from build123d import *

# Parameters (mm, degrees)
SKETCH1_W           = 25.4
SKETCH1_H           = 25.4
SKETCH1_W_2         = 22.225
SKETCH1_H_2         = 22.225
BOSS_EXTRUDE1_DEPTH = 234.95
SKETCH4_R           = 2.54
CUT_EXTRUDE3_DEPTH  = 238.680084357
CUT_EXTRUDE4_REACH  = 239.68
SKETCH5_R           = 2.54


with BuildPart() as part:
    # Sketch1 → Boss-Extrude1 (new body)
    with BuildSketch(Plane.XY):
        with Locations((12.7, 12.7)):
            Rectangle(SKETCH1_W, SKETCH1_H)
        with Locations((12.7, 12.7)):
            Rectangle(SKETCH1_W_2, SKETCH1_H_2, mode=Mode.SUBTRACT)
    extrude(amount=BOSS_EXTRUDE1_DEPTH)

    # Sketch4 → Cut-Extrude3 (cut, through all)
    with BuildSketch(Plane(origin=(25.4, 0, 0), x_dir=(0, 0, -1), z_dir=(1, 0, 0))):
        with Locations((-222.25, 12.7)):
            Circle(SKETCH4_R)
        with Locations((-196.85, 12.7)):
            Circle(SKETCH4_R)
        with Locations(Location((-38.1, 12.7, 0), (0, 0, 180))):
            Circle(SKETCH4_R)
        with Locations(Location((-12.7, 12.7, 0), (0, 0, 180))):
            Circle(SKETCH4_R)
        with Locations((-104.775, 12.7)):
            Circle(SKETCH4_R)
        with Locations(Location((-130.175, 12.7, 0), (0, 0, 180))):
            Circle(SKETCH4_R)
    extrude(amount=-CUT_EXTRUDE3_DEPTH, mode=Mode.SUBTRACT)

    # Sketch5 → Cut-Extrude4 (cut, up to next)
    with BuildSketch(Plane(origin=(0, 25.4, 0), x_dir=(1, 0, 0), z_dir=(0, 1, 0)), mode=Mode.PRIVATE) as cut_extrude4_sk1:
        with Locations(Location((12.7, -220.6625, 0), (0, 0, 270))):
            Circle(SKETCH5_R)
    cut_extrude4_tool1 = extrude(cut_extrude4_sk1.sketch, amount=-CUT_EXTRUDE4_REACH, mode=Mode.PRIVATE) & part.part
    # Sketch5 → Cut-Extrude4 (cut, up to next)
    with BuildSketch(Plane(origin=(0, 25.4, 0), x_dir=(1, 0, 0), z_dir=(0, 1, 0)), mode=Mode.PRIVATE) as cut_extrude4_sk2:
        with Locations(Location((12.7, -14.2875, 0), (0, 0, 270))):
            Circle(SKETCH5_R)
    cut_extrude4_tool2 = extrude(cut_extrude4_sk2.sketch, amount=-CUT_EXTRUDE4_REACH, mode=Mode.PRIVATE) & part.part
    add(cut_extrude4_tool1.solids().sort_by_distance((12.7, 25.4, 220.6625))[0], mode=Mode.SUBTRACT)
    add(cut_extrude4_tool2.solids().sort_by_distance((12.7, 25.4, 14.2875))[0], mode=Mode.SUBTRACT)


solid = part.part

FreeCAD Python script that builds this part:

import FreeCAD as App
import Part
import Sketcher
Q = App.Units.Quantity


def add_polygon(sketch, points):
    """Adds a closed chain of lines whose ends are joined by coincident constraints."""
    first, n = sketch.GeometryCount, len(points)
    for a, b in zip(points, points[1:] + points[:1]):
        sketch.addGeometry(Part.LineSegment(App.Vector(*a, 0), App.Vector(*b, 0)), False)
    for i in range(n):
        sketch.addConstraint(Sketcher.Constraint("Coincident", first + i, 2, first + (i + 1) % n, 1))

doc = App.newDocument("Part")
body = doc.addObject("PartDesign::Body", "Body")

# Sketch on XY plane
sketch1 = body.newObject("Sketcher::SketchObject", "Sketch")
sketch1.AttachmentSupport = (doc.getObject("XY_Plane"), [""])
sketch1.MapMode = "FlatFace"
add_polygon(sketch1, [(0, 25), (0, 0), (25, 0), (25, 25)])  # lines 0-3
add_polygon(sketch1, [(24, 2), (2, 2), (2, 24), (24, 24)])  # lines 4-7
sketch1.addConstraint(Sketcher.Constraint("Vertical", 0))
sketch1.addConstraint(Sketcher.Constraint("Horizontal", 1))
sketch1.addConstraint(Sketcher.Constraint("Vertical", 2))
sketch1.addConstraint(Sketcher.Constraint("Horizontal", 3))
sketch1.addConstraint(Sketcher.Constraint("Horizontal", 4))
sketch1.addConstraint(Sketcher.Constraint("Vertical", 5))
sketch1.addConstraint(Sketcher.Constraint("Horizontal", 6))
sketch1.addConstraint(Sketcher.Constraint("Vertical", 7))
sketch1.addConstraint(Sketcher.Constraint("Coincident", 0, 2, -1, 1))
sketch1.addConstraint(Sketcher.Constraint("Equal", 3, 0))
sketch1.addConstraint(Sketcher.Constraint("Equal", 6, 5))
sketch1.addConstraint(Sketcher.Constraint("DistanceX", 1, 1, 1, 2, Q("1 in")))
sketch1.addConstraint(Sketcher.Constraint("DistanceX", 4, 2, 4, 1, Q("0.875 in")))
sketch1.addConstraint(Sketcher.Constraint("DistanceX", -1, 1, 4, 2, Q("0.0625 in")))
sketch1.addConstraint(Sketcher.Constraint("DistanceY", -1, 1, 4, 2, Q("0.0625 in")))
pad1 = body.newObject("PartDesign::Pad", "Pad")
pad1.Profile = sketch1
pad1.Length = Q("9.25 in")

# Sketch on YZ plane
sketch2 = body.newObject("Sketcher::SketchObject", "Sketch001")
sketch2.AttachmentSupport = (doc.getObject("YZ_Plane"), [""])
sketch2.MapMode = "FlatFace"
sketch2.AttachmentOffset = App.Placement(App.Vector(0, 0, 1 * 25.4), App.Rotation())
sketch2.addGeometry(Part.Circle(App.Vector(12.7, 222.2, 0), App.Vector(0, 0, 1), 2.5), False)
sketch2.addGeometry(Part.Circle(App.Vector(12.7, 196.8, 0), App.Vector(0, 0, 1), 2.5), False)
sketch2.addGeometry(Part.Circle(App.Vector(12.7, 38.1, 0), App.Vector(0, 0, 1), 2.5), False)
sketch2.addGeometry(Part.Circle(App.Vector(12.7, 12.7, 0), App.Vector(0, 0, 1), 2.5), False)
sketch2.addGeometry(Part.Circle(App.Vector(12.7, 104.8, 0), App.Vector(0, 0, 1), 2.5), False)
sketch2.addGeometry(Part.Circle(App.Vector(12.7, 130.2, 0), App.Vector(0, 0, 1), 2.5), False)
sketch2.addConstraint(Sketcher.Constraint("Equal", 0, 1))
sketch2.addConstraint(Sketcher.Constraint("Equal", 1, 2))
sketch2.addConstraint(Sketcher.Constraint("Equal", 2, 3))
sketch2.addConstraint(Sketcher.Constraint("Equal", 3, 4))
sketch2.addConstraint(Sketcher.Constraint("Equal", 4, 5))
sketch2.addConstraint(Sketcher.Constraint("Vertical", 0, 3, 1, 3))
sketch2.addConstraint(Sketcher.Constraint("Vertical", 1, 3, 2, 3))
sketch2.addConstraint(Sketcher.Constraint("Vertical", 2, 3, 3, 3))
sketch2.addConstraint(Sketcher.Constraint("Vertical", 3, 3, 4, 3))
sketch2.addConstraint(Sketcher.Constraint("Vertical", 4, 3, 5, 3))
sketch2.addConstraint(Sketcher.Constraint("Diameter", 0, Q("0.2 in")))
sketch2.addConstraint(Sketcher.Constraint("DistanceY", 1, 3, 0, 3, Q("1 in")))
sketch2.addConstraint(Sketcher.Constraint("DistanceY", 3, 3, 2, 3, Q("1 in")))
sketch2.addConstraint(Sketcher.Constraint("DistanceY", 4, 3, 5, 3, Q("1 in")))
sketch2.addConstraint(Sketcher.Constraint("DistanceX", -1, 1, 0, 3, Q("0.5 in")))
sketch2.addConstraint(Sketcher.Constraint("DistanceY", -1, 1, 2, 3, Q("1.5 in")))
sketch2.addConstraint(Sketcher.Constraint("DistanceY", -1, 1, 0, 3, Q("8.75 in")))
sketch2.addConstraint(Sketcher.Constraint("DistanceY", -1, 1, 4, 3, Q("4.125 in")))
pocket1 = body.newObject("PartDesign::Pocket", "Pocket")
pocket1.Profile = sketch2
pocket1.Type = "ThroughAll"

# Sketch on XZ plane
sketch3 = body.newObject("Sketcher::SketchObject", "Sketch002")
sketch3.AttachmentSupport = (doc.getObject("XZ_Plane"), [""])
sketch3.MapMode = "FlatFace"
sketch3.AttachmentOffset = App.Placement(App.Vector(0, 0, -1 * 25.4), App.Rotation())
sketch3.addGeometry(Part.Circle(App.Vector(12.7, 220.7, 0), App.Vector(0, 0, 1), 2.5), False)
sketch3.addConstraint(Sketcher.Constraint("Diameter", 0, Q("0.2 in")))
sketch3.addConstraint(Sketcher.Constraint("DistanceX", -1, 1, 0, 3, Q("0.5 in")))
sketch3.addConstraint(Sketcher.Constraint("DistanceY", -1, 1, 0, 3, Q("8.6875 in")))
pocket2 = body.newObject("PartDesign::Pocket", "Pocket001")
pocket2.Profile = sketch3
pocket2.Type = "UpToFirst"
pocket2.Reversed = True

# Sketch on XZ plane
sketch4 = body.newObject("Sketcher::SketchObject", "Sketch003")
sketch4.AttachmentSupport = (doc.getObject("XZ_Plane"), [""])
sketch4.MapMode = "FlatFace"
sketch4.AttachmentOffset = App.Placement(App.Vector(0, 0, -1 * 25.4), App.Rotation())
sketch4.addGeometry(Part.Circle(App.Vector(12.7, 14.3, 0), App.Vector(0, 0, 1), 2.5), False)
sketch4.addConstraint(Sketcher.Constraint("Diameter", 0, Q("0.2 in")))
sketch4.addConstraint(Sketcher.Constraint("DistanceX", -1, 1, 0, 3, Q("0.5 in")))
sketch4.addConstraint(Sketcher.Constraint("DistanceY", -1, 1, 0, 3, Q("0.5625 in")))
pocket3 = body.newObject("PartDesign::Pocket", "Pocket002")
pocket3.Profile = sketch4
pocket3.Type = "UpToFirst"
pocket3.Reversed = True

doc.recompute()
